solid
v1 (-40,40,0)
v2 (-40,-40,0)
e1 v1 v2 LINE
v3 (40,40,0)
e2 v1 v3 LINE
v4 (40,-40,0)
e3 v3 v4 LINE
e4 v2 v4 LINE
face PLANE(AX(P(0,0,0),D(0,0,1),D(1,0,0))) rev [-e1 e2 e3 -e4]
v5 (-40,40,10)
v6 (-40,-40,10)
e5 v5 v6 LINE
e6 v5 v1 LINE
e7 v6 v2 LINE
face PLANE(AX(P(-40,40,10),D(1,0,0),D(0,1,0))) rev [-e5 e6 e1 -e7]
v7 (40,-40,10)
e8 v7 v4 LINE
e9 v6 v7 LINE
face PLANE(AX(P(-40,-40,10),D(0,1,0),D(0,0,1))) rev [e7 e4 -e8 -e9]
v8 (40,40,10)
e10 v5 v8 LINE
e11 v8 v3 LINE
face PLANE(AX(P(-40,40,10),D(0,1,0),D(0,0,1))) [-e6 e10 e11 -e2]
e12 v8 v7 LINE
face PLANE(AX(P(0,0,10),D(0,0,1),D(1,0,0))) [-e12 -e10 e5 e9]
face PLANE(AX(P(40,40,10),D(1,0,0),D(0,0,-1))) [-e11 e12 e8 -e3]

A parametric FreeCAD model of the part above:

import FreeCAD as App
import Part
import Sketcher
from FreeCAD import Vector
Q = App.Units.Quantity

doc = App.newDocument("Part")
params = doc.addObject("Spreadsheet::Sheet", "Params")
for row, (alias, value) in enumerate([
    ("sketch1_width", "80 mm"),
    ("pad1_length", "10 mm"),
], start=1):
    params.set(f"A{row}", alias)
    params.set(f"B{row}", "=" + value)
    params.setAlias(f"B{row}", alias)

body = doc.addObject("PartDesign::Body", "Body")

sketch1 = doc.addObject("Sketcher::SketchObject", "Sketch")
body.addObject(sketch1)
sketch1.AttachmentSupport = (doc.XY_Plane, [""])
sketch1.MapMode = "FlatFace"
sketch1.addGeometry([
    Part.LineSegment(Vector(-40, 40, 0), Vector(-40, -40, 0)),
    Part.LineSegment(Vector(-40, -40, 0), Vector(40, -40, 0)),
    Part.LineSegment(Vector(40, -40, 0), Vector(40, 40, 0)),
    Part.LineSegment(Vector(40, 40, 0), Vector(-40, 40, 0)),
], False)
sketch1.addConstraint([
    Sketcher.Constraint("Coincident", 0, 2, 1, 1),
    Sketcher.Constraint("Coincident", 1, 2, 2, 1),
    Sketcher.Constraint("Coincident", 2, 2, 3, 1),
    Sketcher.Constraint("Coincident", 3, 2, 0, 1),
    Sketcher.Constraint("Vertical", 0),
    Sketcher.Constraint("Horizontal", 1),
    Sketcher.Constraint("Vertical", 2),
    Sketcher.Constraint("Horizontal", 3),
    Sketcher.Constraint("Symmetric", 0, 2, 2, 2, -1, 1),
    Sketcher.Constraint("Equal", 3, 0),
    Sketcher.Constraint("DistanceX", 1, 1, 1, 2, Q("80 mm")),
])
sketch1.setExpression("Constraints[10]", "Params.sketch1_width")
pad1 = doc.addObject("PartDesign::Pad", "Pad")
body.addObject(pad1)
pad1.Profile = sketch1
pad1.setExpression("Length", "Params.pad1_length")

doc.recompute()
